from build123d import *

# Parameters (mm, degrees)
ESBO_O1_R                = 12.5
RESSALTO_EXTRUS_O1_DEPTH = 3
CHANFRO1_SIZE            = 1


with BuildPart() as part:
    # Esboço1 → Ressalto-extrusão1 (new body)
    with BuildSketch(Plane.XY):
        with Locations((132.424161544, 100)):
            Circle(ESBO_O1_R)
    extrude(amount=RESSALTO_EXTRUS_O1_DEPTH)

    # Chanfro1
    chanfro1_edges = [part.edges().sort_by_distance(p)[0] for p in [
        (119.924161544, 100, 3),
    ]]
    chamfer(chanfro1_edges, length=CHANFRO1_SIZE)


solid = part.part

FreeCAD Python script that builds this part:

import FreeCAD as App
import Part
import Sketcher

V = App.Vector


def edges_at(feature, points):
    """Names of the edges that pass closest to the given points."""
    edges = feature.Shape.Edges
    near = lambda p: min(range(len(edges)), key=lambda i: edges[i].distToShape(Part.Vertex(*p))[0])
    return sorted({f"Edge{near(p) + 1}" for p in points})

doc = App.newDocument("Part")
body = doc.addObject("PartDesign::Body", "Body")

# Sketch on XY plane
sketch1 = body.newObject("Sketcher::SketchObject", "Sketch")
sketch1.AttachmentSupport = (doc.getObject("XY_Plane"), [""])
sketch1.MapMode = "FlatFace"
sketch1.addGeometry(Part.Circle(V(132, 100, 0), V(0, 0, 1), 12), False)
sketch1.addConstraint([
    Sketcher.Constraint("Diameter", 0, 25.0),
    Sketcher.Constraint("DistanceY", -1, 1, 0, 3, 100.0),
    Sketcher.Constraint("DistanceX", -1, 1, 0, 3, 132.424162),
])
pad1 = body.newObject("PartDesign::Pad", "Pad")
pad1.Profile = sketch1
pad1.Length = 3
doc.recompute()

chamfer = body.newObject("PartDesign::Chamfer", "Chamfer")
chamfer.Base = (pad1, edges_at(pad1, [(119.924, 100, 3)]))
chamfer.Size = 1

doc.recompute()
